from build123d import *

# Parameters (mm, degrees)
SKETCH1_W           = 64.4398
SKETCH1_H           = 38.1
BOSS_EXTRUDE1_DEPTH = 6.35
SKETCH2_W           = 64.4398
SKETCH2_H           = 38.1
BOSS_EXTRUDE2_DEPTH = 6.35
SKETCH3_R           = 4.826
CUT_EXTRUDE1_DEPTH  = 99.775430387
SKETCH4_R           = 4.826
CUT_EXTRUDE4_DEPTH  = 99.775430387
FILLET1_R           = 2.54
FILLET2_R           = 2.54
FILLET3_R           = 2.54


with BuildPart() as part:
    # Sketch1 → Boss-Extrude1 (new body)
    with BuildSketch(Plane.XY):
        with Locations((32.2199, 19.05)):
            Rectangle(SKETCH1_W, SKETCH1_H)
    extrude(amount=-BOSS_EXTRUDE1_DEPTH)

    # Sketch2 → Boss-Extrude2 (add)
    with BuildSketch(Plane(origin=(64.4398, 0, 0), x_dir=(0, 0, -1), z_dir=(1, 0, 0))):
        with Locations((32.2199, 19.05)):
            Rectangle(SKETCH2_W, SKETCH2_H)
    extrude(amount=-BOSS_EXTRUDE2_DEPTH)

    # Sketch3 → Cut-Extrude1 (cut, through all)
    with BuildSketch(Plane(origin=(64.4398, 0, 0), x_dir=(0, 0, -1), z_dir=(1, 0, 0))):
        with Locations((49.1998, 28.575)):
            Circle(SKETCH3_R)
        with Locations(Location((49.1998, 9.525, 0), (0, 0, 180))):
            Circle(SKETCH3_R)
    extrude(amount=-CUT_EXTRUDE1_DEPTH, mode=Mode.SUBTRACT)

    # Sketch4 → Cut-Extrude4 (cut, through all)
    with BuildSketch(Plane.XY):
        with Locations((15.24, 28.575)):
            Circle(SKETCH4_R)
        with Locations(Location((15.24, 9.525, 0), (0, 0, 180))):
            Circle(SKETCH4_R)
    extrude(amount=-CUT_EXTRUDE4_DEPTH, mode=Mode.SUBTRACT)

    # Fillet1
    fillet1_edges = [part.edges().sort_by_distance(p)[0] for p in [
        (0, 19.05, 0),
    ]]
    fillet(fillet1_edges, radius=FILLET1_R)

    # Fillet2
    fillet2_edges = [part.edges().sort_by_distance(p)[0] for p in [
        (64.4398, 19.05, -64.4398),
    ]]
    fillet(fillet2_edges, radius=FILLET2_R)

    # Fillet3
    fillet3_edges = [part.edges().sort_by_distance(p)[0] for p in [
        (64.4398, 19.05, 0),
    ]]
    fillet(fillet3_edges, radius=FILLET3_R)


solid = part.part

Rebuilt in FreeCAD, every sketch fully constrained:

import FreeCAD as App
import Part
import Sketcher

V = App.Vector
Q = App.Units.Quantity


def edges_at(feature, points):
    """Names of the edges that pass closest to the given points."""
    edges = feature.Shape.Edges
    near = lambda p: min(range(len(edges)), key=lambda i: edges[i].distToShape(Part.Vertex(*p))[0])
    return sorted({f"Edge{near(p) + 1}" for p in points})


def add_polygon(sketch, points):
    """Adds a closed chain of lines whose ends are joined by coincident constraints."""
    first, n = sketch.GeometryCount, len(points)
    for a, b in zip(points, points[1:] + points[:1]):
        sketch.addGeometry(Part.LineSegment(App.Vector(*a, 0), App.Vector(*b, 0)), False)
    for i in range(n):
        sketch.addConstraint(Sketcher.Constraint("Coincident", first + i, 2, first + (i + 1) % n, 1))

doc = App.newDocument("Part")
body = doc.addObject("PartDesign::Body", "Body")

sketch1 = body.newObject("Sketcher::SketchObject", "Sketch")
sketch1.AttachmentSupport = (doc.getObject("XY_Plane"), [""])
sketch1.MapMode = "FlatFace"
add_polygon(sketch1, [(0, 38), (0, 0), (64, 0), (64, 38)])
sketch1.addConstraint([
    Sketcher.Constraint("Vertical", 0),
    Sketcher.Constraint("Horizontal", 1),
    Sketcher.Constraint("Vertical", 2),
    Sketcher.Constraint("Horizontal", 3),
    Sketcher.Constraint("Coincident", 0, 2, -1, 1),
    Sketcher.Constraint("DistanceY", 0, 2, 0, 1, Q("1.5 in")),
    Sketcher.Constraint("DistanceX", 1, 1, 1, 2, Q("2.537 in")),
])
pad1 = body.newObject("PartDesign::Pad", "Pad")
pad1.Profile = sketch1
pad1.Length = Q("0.25 in")
pad1.Reversed = True

sketch2 = body.newObject("Sketcher::SketchObject", "Sketch001")
sketch2.AttachmentSupport = (doc.getObject("YZ_Plane"), [""])
sketch2.MapMode = "FlatFace"
sketch2.AttachmentOffset = App.Placement(V(0, 0, 2.537 * 25.4), App.Rotation())
add_polygon(sketch2, [(38, 0), (0, 0), (0, -64), (38, -64)])
sketch2.addConstraint([
    Sketcher.Constraint("Horizontal", 0),
    Sketcher.Constraint("Vertical", 1),
    Sketcher.Constraint("Horizontal", 2),
    Sketcher.Constraint("Vertical", 3),
    Sketcher.Constraint("Coincident", 0, 2, -1, 1),
    Sketcher.Constraint("DistanceX", 0, 2, 0, 1, Q("1.5 in")),
    Sketcher.Constraint("DistanceY", 1, 2, 1, 1, Q("2.537 in")),
])
pad2 = body.newObject("PartDesign::Pad", "Pad001")
pad2.Profile = sketch2
pad2.Length = Q("0.25 in")
pad2.Reversed = True

sketch3 = body.newObject("Sketcher::SketchObject", "Sketch002")
sketch3.AttachmentSupport = (doc.getObject("YZ_Plane"), [""])
sketch3.MapMode = "FlatFace"
sketch3.AttachmentOffset = App.Placement(V(0, 0, 2.537 * 25.4), App.Rotation())
sketch3.addGeometry([
    Part.Circle(V(28.6, -49.2, 0), V(0, 0, 1), 4.8),
    Part.Circle(V(9.5, -49.2, 0), V(0, 0, 1), 4.8),
], False)
sketch3.addConstraint([
    Sketcher.Constraint("Equal", 0, 1),
    Sketcher.Constraint("Horizontal", 0, 3, 1, 3),
    Sketcher.Constraint("Diameter", 0, Q("0.38 in")),
    Sketcher.Constraint("DistanceX", 1, 3, 0, 3, Q("0.75 in")),
    Sketcher.Constraint("DistanceX", -1, 1, 0, 3, Q("1.125 in")),
    Sketcher.Constraint("DistanceY", 0, 3, -1, 1, Q("1.937 in")),
])
pocket1 = body.newObject("PartDesign::Pocket", "Pocket")
pocket1.Profile = sketch3
pocket1.Type = "ThroughAll"

sketch4 = body.newObject("Sketcher::SketchObject", "Sketch003")
sketch4.AttachmentSupport = (doc.getObject("XY_Plane"), [""])
sketch4.MapMode = "FlatFace"
sketch4.addGeometry([
    Part.Circle(V(15.2, 28.6, 0), V(0, 0, 1), 4.8),
    Part.Circle(V(15.2, 9.5, 0), V(0, 0, 1), 4.8),
], False)
sketch4.addConstraint([
    Sketcher.Constraint("Equal", 0, 1),
    Sketcher.Constraint("Vertical", 0, 3, 1, 3),
    Sketcher.Constraint("Diameter", 0, Q("0.38 in")),
    Sketcher.Constraint("DistanceX", -1, 1, 0, 3, Q("0.6 in")),
    Sketcher.Constraint("DistanceY", 1, 3, 0, 3, Q("0.75 in")),
    Sketcher.Constraint("DistanceY", -1, 1, 0, 3, Q("1.125 in")),
])
pocket2 = body.newObject("PartDesign::Pocket", "Pocket001")
pocket2.Profile = sketch4
pocket2.Type = "ThroughAll"
doc.recompute()

fillet = body.newObject("PartDesign::Fillet", "Fillet")
fillet.Base = (pocket2, edges_at(pocket2, [(0, 19.05, 0)]))
fillet.Radius = Q("0.1 in")
doc.recompute()

fillet2 = body.newObject("PartDesign::Fillet", "Fillet001")
fillet2.Base = (fillet, edges_at(fillet, [(64.44, 19.05, -64.44)]))
fillet2.Radius = Q("0.1 in")
doc.recompute()

fillet3 = body.newObject("PartDesign::Fillet", "Fillet002")
fillet3.Base = (fillet2, edges_at(fillet2, [(64.44, 19.05, 0)]))
fillet3.Radius = Q("0.1 in")

doc.recompute()
